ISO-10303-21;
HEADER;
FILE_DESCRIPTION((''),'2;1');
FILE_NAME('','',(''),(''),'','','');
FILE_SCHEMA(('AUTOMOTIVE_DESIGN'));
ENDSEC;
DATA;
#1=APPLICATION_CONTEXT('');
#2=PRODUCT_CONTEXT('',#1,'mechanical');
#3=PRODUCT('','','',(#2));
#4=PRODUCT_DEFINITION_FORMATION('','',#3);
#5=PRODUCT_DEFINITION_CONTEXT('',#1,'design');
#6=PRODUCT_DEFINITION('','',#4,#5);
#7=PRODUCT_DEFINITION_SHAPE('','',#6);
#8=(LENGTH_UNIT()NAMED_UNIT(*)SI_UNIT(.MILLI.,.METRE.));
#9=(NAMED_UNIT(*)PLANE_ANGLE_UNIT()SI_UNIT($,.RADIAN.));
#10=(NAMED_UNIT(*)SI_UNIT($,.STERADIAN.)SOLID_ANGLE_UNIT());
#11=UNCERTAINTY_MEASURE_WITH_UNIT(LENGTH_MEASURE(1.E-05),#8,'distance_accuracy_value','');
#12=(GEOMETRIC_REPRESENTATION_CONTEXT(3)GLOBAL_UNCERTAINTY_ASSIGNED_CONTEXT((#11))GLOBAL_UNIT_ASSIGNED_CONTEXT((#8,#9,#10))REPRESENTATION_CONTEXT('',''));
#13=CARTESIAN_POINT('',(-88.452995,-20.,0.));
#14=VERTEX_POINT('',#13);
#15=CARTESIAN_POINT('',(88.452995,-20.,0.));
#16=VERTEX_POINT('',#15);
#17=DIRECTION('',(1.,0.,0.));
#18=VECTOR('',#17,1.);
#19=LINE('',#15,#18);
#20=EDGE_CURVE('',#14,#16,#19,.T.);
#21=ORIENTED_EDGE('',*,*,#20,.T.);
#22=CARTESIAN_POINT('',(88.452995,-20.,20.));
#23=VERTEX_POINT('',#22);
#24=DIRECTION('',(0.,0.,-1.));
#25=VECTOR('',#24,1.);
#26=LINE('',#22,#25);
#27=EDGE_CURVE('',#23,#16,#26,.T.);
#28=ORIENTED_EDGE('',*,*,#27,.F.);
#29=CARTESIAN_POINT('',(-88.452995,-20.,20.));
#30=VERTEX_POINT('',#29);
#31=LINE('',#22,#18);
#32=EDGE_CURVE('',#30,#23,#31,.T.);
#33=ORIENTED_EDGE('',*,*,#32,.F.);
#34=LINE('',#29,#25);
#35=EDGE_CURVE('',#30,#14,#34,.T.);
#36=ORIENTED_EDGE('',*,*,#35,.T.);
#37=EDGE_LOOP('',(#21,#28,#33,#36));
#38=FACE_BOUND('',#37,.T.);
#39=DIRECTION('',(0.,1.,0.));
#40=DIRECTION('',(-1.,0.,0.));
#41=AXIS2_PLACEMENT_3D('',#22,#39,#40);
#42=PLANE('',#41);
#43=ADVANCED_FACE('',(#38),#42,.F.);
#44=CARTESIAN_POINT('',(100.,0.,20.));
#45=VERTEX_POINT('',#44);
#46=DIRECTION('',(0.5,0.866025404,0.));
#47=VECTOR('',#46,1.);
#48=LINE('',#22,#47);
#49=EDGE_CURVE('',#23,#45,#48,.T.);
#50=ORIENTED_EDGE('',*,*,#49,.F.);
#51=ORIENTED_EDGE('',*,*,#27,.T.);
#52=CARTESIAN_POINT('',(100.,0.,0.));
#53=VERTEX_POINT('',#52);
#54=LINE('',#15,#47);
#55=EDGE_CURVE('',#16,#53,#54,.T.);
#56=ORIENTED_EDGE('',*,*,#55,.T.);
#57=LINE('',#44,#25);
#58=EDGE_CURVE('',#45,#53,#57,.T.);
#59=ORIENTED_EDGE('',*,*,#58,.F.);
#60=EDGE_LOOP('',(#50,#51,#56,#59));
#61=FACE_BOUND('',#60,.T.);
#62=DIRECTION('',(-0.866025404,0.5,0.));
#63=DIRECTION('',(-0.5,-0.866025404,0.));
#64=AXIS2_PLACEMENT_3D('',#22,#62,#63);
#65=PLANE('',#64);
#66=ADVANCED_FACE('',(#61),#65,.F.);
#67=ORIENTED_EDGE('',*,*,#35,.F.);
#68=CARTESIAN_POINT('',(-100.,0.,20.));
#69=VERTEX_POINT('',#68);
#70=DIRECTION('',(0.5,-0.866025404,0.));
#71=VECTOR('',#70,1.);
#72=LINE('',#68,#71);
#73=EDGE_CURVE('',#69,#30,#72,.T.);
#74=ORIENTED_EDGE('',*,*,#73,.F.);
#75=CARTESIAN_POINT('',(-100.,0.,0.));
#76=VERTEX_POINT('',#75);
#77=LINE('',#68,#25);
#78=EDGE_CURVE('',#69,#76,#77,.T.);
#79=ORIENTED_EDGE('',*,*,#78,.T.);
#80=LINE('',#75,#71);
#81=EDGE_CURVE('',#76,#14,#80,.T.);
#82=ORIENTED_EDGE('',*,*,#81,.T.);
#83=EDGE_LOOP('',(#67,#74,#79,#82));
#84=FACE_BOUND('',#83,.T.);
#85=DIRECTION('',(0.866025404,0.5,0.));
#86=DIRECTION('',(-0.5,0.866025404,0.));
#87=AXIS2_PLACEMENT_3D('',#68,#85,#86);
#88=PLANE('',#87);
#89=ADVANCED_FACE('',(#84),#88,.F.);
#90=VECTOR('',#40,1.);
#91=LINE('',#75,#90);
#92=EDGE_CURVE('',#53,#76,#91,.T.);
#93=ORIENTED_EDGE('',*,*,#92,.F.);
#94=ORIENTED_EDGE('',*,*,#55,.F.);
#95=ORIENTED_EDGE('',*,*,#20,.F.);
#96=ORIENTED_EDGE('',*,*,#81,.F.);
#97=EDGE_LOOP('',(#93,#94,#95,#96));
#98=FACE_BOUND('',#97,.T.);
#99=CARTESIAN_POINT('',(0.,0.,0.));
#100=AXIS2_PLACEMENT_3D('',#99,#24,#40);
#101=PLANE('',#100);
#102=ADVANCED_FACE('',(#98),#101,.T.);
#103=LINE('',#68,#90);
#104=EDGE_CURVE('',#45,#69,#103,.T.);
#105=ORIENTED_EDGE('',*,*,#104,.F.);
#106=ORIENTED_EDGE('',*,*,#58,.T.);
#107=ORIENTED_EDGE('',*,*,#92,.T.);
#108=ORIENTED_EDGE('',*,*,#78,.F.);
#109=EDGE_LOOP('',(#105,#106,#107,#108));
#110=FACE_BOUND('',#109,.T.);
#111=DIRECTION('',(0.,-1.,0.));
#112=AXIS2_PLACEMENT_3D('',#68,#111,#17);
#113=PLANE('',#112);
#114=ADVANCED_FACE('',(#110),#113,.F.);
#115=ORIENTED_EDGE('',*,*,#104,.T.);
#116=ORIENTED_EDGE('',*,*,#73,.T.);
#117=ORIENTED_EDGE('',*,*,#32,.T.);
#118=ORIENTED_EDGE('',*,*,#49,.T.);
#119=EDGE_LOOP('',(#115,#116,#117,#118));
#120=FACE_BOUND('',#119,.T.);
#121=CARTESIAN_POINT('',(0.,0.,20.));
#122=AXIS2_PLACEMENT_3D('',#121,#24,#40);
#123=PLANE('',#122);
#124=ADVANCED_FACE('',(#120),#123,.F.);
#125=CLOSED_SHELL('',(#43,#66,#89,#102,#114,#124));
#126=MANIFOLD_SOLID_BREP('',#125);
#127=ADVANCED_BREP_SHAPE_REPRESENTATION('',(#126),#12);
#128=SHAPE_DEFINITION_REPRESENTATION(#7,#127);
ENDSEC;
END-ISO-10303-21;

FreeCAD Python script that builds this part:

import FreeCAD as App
import Part
import Sketcher
from FreeCAD import Vector
Q = App.Units.Quantity

doc = App.newDocument("Part")
body = doc.addObject("PartDesign::Body", "Body")

sketch1 = body.newObject("Sketcher::SketchObject", "Sketch")
sketch1.AttachmentSupport = (doc.getObject("XY_Plane"), [""])
sketch1.MapMode = "FlatFace"
sketch1.addGeometry(Part.LineSegment(Vector(100, 0, 0), Vector(-100, 0, 0)), False)
sketch1.addGeometry(Part.LineSegment(Vector(-100, 0, 0), Vector(-88, -20, 0)), False)
sketch1.addGeometry(Part.LineSegment(Vector(-88, -20, 0), Vector(88, -20, 0)), False)
sketch1.addGeometry(Part.LineSegment(Vector(88, -20, 0), Vector(100, 0, 0)), False)
sketch1.addConstraint(Sketcher.Constraint("Coincident", 0, 2, 1, 1))
sketch1.addConstraint(Sketcher.Constraint("Coincident", 1, 2, 2, 1))
sketch1.addConstraint(Sketcher.Constraint("Coincident", 2, 2, 3, 1))
sketch1.addConstraint(Sketcher.Constraint("Coincident", 3, 2, 0, 1))
sketch1.addConstraint(Sketcher.Constraint("Horizontal", 0))
sketch1.addConstraint(Sketcher.Constraint("Horizontal", 2))
sketch1.addConstraint(Sketcher.Constraint("Symmetric", 0, 2, 3, 2, -1, 1))
sketch1.addConstraint(Sketcher.Constraint("Equal", 1, 3))
sketch1.addConstraint(Sketcher.Constraint("DistanceX", 0, 2, 0, 1, 200.0))
sketch1.addConstraint(Sketcher.Constraint("Angle", 1, Q("-60 deg")))
sketch1.addConstraint(Sketcher.Constraint("DistanceY", 1, 2, -1, 1, 20.0))
pad1 = body.newObject("PartDesign::Pad", "Pad")
pad1.Profile = sketch1
pad1.Length = 20

doc.recompute()
